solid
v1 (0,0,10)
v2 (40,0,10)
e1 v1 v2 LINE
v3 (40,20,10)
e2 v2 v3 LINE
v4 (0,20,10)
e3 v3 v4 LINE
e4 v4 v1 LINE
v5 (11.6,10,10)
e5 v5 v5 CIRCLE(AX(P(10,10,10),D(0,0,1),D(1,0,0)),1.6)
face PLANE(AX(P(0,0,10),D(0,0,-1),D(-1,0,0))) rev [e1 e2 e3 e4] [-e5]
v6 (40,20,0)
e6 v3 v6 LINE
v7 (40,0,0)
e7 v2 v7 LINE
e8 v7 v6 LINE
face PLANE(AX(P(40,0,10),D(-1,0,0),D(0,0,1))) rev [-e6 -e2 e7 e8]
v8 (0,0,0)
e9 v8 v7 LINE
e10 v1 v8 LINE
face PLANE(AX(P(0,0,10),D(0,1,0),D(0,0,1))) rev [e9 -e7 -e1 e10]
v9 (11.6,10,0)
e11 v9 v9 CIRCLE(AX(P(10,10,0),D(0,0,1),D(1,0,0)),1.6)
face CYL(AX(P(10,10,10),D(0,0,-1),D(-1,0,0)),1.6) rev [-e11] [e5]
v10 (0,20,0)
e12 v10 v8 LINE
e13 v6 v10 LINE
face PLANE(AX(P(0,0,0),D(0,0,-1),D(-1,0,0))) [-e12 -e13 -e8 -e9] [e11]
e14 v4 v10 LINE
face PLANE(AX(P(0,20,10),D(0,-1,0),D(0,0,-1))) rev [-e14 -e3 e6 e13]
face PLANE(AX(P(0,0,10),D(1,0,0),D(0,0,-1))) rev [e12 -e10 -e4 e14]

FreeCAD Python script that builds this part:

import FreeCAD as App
import Part
import Sketcher
Q = App.Units.Quantity


def add_polygon(sketch, points):
    """Adds a closed chain of lines whose ends are joined by coincident constraints."""
    first, n = sketch.GeometryCount, len(points)
    for a, b in zip(points, points[1:] + points[:1]):
        sketch.addGeometry(Part.LineSegment(App.Vector(*a, 0), App.Vector(*b, 0)), False)
    for i in range(n):
        sketch.addConstraint(Sketcher.Constraint("Coincident", first + i, 2, first + (i + 1) % n, 1))

doc = App.newDocument("Part")
body = doc.addObject("PartDesign::Body", "Body")

# Sketch on XY plane
sketch1 = body.newObject("Sketcher::SketchObject", "Sketch")
sketch1.AttachmentSupport = (doc.getObject("XY_Plane"), [""])
sketch1.MapMode = "FlatFace"
add_polygon(sketch1, [(0, 20), (0, 0), (40, 0), (40, 20)])  # lines 0-3
sketch1.addGeometry(Part.Circle(App.Vector(10, 10, 0), App.Vector(0, 0, 1), 1.6), False)  # 4
sketch1.addConstraint(Sketcher.Constraint("Vertical", 0))
sketch1.addConstraint(Sketcher.Constraint("Horizontal", 1))
sketch1.addConstraint(Sketcher.Constraint("Vertical", 2))
sketch1.addConstraint(Sketcher.Constraint("Horizontal", 3))
sketch1.addConstraint(Sketcher.Constraint("Coincident", 0, 2, -1, 1))
sketch1.addConstraint(Sketcher.Constraint("Diameter", 4, Q("3.2 mm")))
sketch1.addConstraint(Sketcher.Constraint("DistanceX", 1, 1, 1, 2, Q("40 mm")))
sketch1.addConstraint(Sketcher.Constraint("DistanceY", 0, 2, 0, 1, Q("20 mm")))
sketch1.addConstraint(Sketcher.Constraint("DistanceX", -1, 1, 4, 3, Q("10 mm")))
sketch1.addConstraint(Sketcher.Constraint("DistanceY", -1, 1, 4, 3, Q("10 mm")))
pad1 = body.newObject("PartDesign::Pad", "Pad")
pad1.Profile = sketch1
pad1.Length = 10

doc.recompute()
